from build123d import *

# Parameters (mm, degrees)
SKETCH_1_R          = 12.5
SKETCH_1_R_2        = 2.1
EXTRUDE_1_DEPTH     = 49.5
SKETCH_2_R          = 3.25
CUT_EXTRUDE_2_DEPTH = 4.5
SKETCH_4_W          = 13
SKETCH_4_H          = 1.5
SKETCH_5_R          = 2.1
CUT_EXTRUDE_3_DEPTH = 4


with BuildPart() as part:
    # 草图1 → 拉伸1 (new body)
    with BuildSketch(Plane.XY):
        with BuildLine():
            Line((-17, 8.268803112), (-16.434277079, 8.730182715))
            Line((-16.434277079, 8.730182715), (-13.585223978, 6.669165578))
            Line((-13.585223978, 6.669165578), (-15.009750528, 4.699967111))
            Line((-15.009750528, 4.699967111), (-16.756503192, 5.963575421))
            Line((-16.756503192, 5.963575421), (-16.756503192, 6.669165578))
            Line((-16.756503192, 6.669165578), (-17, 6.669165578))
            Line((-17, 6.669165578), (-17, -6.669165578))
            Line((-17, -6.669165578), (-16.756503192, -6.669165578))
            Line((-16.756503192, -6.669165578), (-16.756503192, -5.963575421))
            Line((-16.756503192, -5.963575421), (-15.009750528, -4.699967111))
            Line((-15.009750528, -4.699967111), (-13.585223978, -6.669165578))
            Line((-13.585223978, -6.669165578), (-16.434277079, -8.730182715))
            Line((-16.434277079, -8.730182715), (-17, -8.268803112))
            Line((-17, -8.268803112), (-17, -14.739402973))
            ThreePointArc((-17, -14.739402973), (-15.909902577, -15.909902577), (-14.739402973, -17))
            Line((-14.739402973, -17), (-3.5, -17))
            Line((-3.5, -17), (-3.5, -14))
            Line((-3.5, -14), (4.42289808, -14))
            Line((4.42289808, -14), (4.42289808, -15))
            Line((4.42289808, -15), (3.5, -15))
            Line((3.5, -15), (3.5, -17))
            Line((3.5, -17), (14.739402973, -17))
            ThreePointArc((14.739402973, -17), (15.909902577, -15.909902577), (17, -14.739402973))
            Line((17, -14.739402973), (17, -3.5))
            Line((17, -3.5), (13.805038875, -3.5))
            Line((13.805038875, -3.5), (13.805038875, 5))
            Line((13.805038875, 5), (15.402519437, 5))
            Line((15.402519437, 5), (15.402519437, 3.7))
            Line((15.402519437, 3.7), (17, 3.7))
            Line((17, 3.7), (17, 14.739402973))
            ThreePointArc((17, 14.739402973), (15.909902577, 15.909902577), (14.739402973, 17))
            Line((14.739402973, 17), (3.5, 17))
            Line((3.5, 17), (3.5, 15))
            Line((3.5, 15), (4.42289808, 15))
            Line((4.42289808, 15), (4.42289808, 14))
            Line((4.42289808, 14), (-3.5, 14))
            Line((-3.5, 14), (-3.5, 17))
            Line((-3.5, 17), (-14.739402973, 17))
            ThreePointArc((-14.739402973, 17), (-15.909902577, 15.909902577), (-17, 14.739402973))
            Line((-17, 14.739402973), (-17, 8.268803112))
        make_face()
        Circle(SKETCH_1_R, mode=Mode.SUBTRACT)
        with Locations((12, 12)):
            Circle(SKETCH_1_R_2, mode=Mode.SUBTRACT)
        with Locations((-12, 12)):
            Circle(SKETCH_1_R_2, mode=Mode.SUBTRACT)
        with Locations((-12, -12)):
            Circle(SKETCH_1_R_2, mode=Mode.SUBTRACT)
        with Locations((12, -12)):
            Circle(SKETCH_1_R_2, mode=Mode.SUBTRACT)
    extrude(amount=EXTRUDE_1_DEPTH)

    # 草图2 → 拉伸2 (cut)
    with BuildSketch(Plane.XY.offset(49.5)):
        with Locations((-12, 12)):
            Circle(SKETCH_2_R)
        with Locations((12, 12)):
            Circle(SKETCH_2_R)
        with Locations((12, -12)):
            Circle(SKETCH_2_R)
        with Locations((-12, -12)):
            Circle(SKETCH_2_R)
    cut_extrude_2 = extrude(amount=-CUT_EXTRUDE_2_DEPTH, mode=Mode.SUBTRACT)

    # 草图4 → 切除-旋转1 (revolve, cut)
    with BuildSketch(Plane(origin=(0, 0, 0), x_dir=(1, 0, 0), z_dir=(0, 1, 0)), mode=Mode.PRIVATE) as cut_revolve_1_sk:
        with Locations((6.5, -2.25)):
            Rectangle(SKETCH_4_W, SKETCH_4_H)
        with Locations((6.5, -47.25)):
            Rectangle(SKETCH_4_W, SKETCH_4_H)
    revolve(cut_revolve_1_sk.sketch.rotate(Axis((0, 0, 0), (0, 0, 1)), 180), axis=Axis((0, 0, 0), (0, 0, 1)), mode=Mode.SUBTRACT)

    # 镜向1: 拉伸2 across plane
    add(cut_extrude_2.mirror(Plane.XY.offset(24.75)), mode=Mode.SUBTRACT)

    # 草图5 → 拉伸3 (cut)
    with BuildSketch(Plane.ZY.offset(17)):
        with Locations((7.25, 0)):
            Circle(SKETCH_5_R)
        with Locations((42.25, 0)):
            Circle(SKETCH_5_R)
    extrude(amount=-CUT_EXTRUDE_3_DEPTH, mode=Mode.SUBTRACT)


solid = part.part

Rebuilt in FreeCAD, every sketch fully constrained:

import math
import FreeCAD as App
import Part
import Sketcher
Q = App.Units.Quantity


def add_polygon(sketch, points):
    """Adds a closed chain of lines whose ends are joined by coincident constraints."""
    first, n = sketch.GeometryCount, len(points)
    for a, b in zip(points, points[1:] + points[:1]):
        sketch.addGeometry(Part.LineSegment(App.Vector(*a, 0), App.Vector(*b, 0)), False)
    for i in range(n):
        sketch.addConstraint(Sketcher.Constraint("Coincident", first + i, 2, first + (i + 1) % n, 1))

doc = App.newDocument("Part")
body = doc.addObject("PartDesign::Body", "Body")

sketch1 = body.newObject("Sketcher::SketchObject", "Sketch")
sketch1.AttachmentSupport = (doc.getObject("XY_Plane"), [""])
sketch1.MapMode = "FlatFace"
sketch1.addGeometry(Part.LineSegment(App.Vector(-17, 8.27, 0), App.Vector(-16.43, 8.73, 0)), False)
sketch1.addGeometry(Part.LineSegment(App.Vector(-16.43, 8.73, 0), App.Vector(-13.59, 6.67, 0)), False)
sketch1.addGeometry(Part.LineSegment(App.Vector(-13.59, 6.67, 0), App.Vector(-15.01, 4.7, 0)), False)
sketch1.addGeometry(Part.LineSegment(App.Vector(-15.01, 4.7, 0), App.Vector(-16.76, 5.96, 0)), False)
sketch1.addGeometry(Part.LineSegment(App.Vector(-16.76, 5.96, 0), App.Vector(-16.76, 6.67, 0)), False)
sketch1.addGeometry(Part.LineSegment(App.Vector(-16.76, 6.67, 0), App.Vector(-17, 6.67, 0)), False)
sketch1.addGeometry(Part.LineSegment(App.Vector(-17, 6.67, 0), App.Vector(-17, -6.67, 0)), False)
sketch1.addGeometry(Part.LineSegment(App.Vector(-17, -6.67, 0), App.Vector(-16.76, -6.67, 0)), False)
sketch1.addGeometry(Part.LineSegment(App.Vector(-16.76, -6.67, 0), App.Vector(-16.76, -5.96, 0)), False)
sketch1.addGeometry(Part.LineSegment(App.Vector(-16.76, -5.96, 0), App.Vector(-15.01, -4.7, 0)), False)
sketch1.addGeometry(Part.LineSegment(App.Vector(-15.01, -4.7, 0), App.Vector(-13.59, -6.67, 0)), False)
sketch1.addGeometry(Part.LineSegment(App.Vector(-13.59, -6.67, 0), App.Vector(-16.43, -8.73, 0)), False)
sketch1.addGeometry(Part.LineSegment(App.Vector(-16.43, -8.73, 0), App.Vector(-17, -8.27, 0)), False)
sketch1.addGeometry(Part.LineSegment(App.Vector(-17, -8.27, 0), App.Vector(-17, -14.74, 0)), False)
sketch1.addGeometry(Part.ArcOfCircle(Part.Circle(App.Vector(0, 0, 0), App.Vector(0, 0, 1), 22.5), math.radians(-139.07), math.radians(-130.93)), False)
sketch1.addGeometry(Part.LineSegment(App.Vector(-14.74, -17, 0), App.Vector(-3.5, -17, 0)), False)
sketch1.addGeometry(Part.LineSegment(App.Vector(-3.5, -17, 0), App.Vector(-3.5, -14, 0)), False)
sketch1.addGeometry(Part.LineSegment(App.Vector(-3.5, -14, 0), App.Vector(4.42, -14, 0)), False)
sketch1.addGeometry(Part.LineSegment(App.Vector(4.42, -14, 0), App.Vector(4.42, -15, 0)), False)
sketch1.addGeometry(Part.LineSegment(App.Vector(4.42, -15, 0), App.Vector(3.5, -15, 0)), False)
sketch1.addGeometry(Part.LineSegment(App.Vector(3.5, -15, 0), App.Vector(3.5, -17, 0)), False)
sketch1.addGeometry(Part.LineSegment(App.Vector(3.5, -17, 0), App.Vector(14.74, -17, 0)), False)
sketch1.addGeometry(Part.ArcOfCircle(Part.Circle(App.Vector(0, 0, 0), App.Vector(0, 0, 1), 22.5), math.radians(-49.07), math.radians(-40.93)), False)
sketch1.addGeometry(Part.LineSegment(App.Vector(17, -14.74, 0), App.Vector(17, -3.5, 0)), False)
sketch1.addGeometry(Part.LineSegment(App.Vector(17, -3.5, 0), App.Vector(13.81, -3.5, 0)), False)
sketch1.addGeometry(Part.LineSegment(App.Vector(13.81, -3.5, 0), App.Vector(13.81, 5, 0)), False)
sketch1.addGeometry(Part.LineSegment(App.Vector(13.81, 5, 0), App.Vector(15.4, 5, 0)), False)
sketch1.addGeometry(Part.LineSegment(App.Vector(15.4, 5, 0), App.Vector(15.4, 3.7, 0)), False)
sketch1.addGeometry(Part.LineSegment(App.Vector(15.4, 3.7, 0), App.Vector(17, 3.7, 0)), False)
sketch1.addGeometry(Part.LineSegment(App.Vector(17, 3.7, 0), App.Vector(17, 14.74, 0)), False)
sketch1.addGeometry(Part.ArcOfCircle(Part.Circle(App.Vector(0, 0, 0), App.Vector(0, 0, 1), 22.5), math.radians(40.93), math.radians(49.07)), False)
sketch1.addGeometry(Part.LineSegment(App.Vector(14.74, 17, 0), App.Vector(3.5, 17, 0)), False)
sketch1.addGeometry(Part.LineSegment(App.Vector(3.5, 17, 0), App.Vector(3.5, 15, 0)), False)
sketch1.addGeometry(Part.LineSegment(App.Vector(3.5, 15, 0), App.Vector(4.42, 15, 0)), False)
sketch1.addGeometry(Part.LineSegment(App.Vector(4.42, 15, 0), App.Vector(4.42, 14, 0)), False)
sketch1.addGeometry(Part.LineSegment(App.Vector(4.42, 14, 0), App.Vector(-3.5, 14, 0)), False)
sketch1.addGeometry(Part.LineSegment(App.Vector(-3.5, 14, 0), App.Vector(-3.5, 17, 0)), False)
sketch1.addGeometry(Part.LineSegment(App.Vector(-3.5, 17, 0), App.Vector(-14.74, 17, 0)), False)
sketch1.addGeometry(Part.ArcOfCircle(Part.Circle(App.Vector(0, 0, 0), App.Vector(0, 0, 1), 22.5), math.radians(130.93), math.radians(139.07)), False)
sketch1.addGeometry(Part.LineSegment(App.Vector(-17, 14.74, 0), App.Vector(-17, 8.27, 0)), False)
sketch1.addGeometry(Part.Circle(App.Vector(-12, -12, 0), App.Vector(0, 0, 1), 2.1), False)
sketch1.addGeometry(Part.Circle(App.Vector(12, -12, 0), App.Vector(0, 0, 1), 2.1), False)
sketch1.addGeometry(Part.Circle(App.Vector(-12, 12, 0), App.Vector(0, 0, 1), 2.1), False)
sketch1.addGeometry(Part.Circle(App.Vector(0, 0, 0), App.Vector(0, 0, 1), 12.5), False)
sketch1.addGeometry(Part.Circle(App.Vector(12, 12, 0), App.Vector(0, 0, 1), 2.1), False)
sketch1.addConstraint(Sketcher.Constraint("Coincident", 0, 2, 1, 1))
sketch1.addConstraint(Sketcher.Constraint("Coincident", 1, 2, 2, 1))
sketch1.addConstraint(Sketcher.Constraint("Coincident", 2, 2, 3, 1))
sketch1.addConstraint(Sketcher.Constraint("Coincident", 3, 2, 4, 1))
sketch1.addConstraint(Sketcher.Constraint("Coincident", 4, 2, 5, 1))
sketch1.addConstraint(Sketcher.Constraint("Coincident", 5, 2, 6, 1))
sketch1.addConstraint(Sketcher.Constraint("Coincident", 6, 2, 7, 1))
sketch1.addConstraint(Sketcher.Constraint("Coincident", 7, 2, 8, 1))
sketch1.addConstraint(Sketcher.Constraint("Coincident", 8, 2, 9, 1))
sketch1.addConstraint(Sketcher.Constraint("Coincident", 9, 2, 10, 1))
sketch1.addConstraint(Sketcher.Constraint("Coincident", 10, 2, 11, 1))
sketch1.addConstraint(Sketcher.Constraint("Coincident", 11, 2, 12, 1))
sketch1.addConstraint(Sketcher.Constraint("Coincident", 12, 2, 13, 1))
sketch1.addConstraint(Sketcher.Constraint("Coincident", 13, 2, 14, 1))
sketch1.addConstraint(Sketcher.Constraint("Coincident", 14, 2, 15, 1))
sketch1.addConstraint(Sketcher.Constraint("Coincident", 15, 2, 16, 1))
sketch1.addConstraint(Sketcher.Constraint("Coincident", 16, 2, 17, 1))
sketch1.addConstraint(Sketcher.Constraint("Coincident", 17, 2, 18, 1))
sketch1.addConstraint(Sketcher.Constraint("Coincident", 18, 2, 19, 1))
sketch1.addConstraint(Sketcher.Constraint("Coincident", 19, 2, 20, 1))
sketch1.addConstraint(Sketcher.Constraint("Coincident", 20, 2, 21, 1))
sketch1.addConstraint(Sketcher.Constraint("Coincident", 21, 2, 22, 1))
sketch1.addConstraint(Sketcher.Constraint("Coincident", 22, 2, 23, 1))
sketch1.addConstraint(Sketcher.Constraint("Coincident", 23, 2, 24, 1))
sketch1.addConstraint(Sketcher.Constraint("Coincident", 24, 2, 25, 1))
sketch1.addConstraint(Sketcher.Constraint("Coincident", 25, 2, 26, 1))
sketch1.addConstraint(Sketcher.Constraint("Coincident", 26, 2, 27, 1))
sketch1.addConstraint(Sketcher.Constraint("Coincident", 27, 2, 28, 1))
sketch1.addConstraint(Sketcher.Constraint("Coincident", 28, 2, 29, 1))
sketch1.addConstraint(Sketcher.Constraint("Coincident", 29, 2, 30, 1))
sketch1.addConstraint(Sketcher.Constraint("Coincident", 30, 2, 31, 1))
sketch1.addConstraint(Sketcher.Constraint("Coincident", 31, 2, 32, 1))
sketch1.addConstraint(Sketcher.Constraint("Coincident", 32, 2, 33, 1))
sketch1.addConstraint(Sketcher.Constraint("Coincident", 33, 2, 34, 1))
sketch1.addConstraint(Sketcher.Constraint("Coincident", 34, 2, 35, 1))
sketch1.addConstraint(Sketcher.Constraint("Coincident", 35, 2, 36, 1))
sketch1.addConstraint(Sketcher.Constraint("Coincident", 36, 2, 37, 1))
sketch1.addConstraint(Sketcher.Constraint("Coincident", 37, 2, 38, 1))
sketch1.addConstraint(Sketcher.Constraint("Coincident", 38, 2, 39, 1))
sketch1.addConstraint(Sketcher.Constraint("Coincident", 39, 2, 0, 1))
sketch1.addConstraint(Sketcher.Constraint("Vertical", 4))
sketch1.addConstraint(Sketcher.Constraint("Horizontal", 5))
sketch1.addConstraint(Sketcher.Constraint("Vertical", 6))
sketch1.addConstraint(Sketcher.Constraint("Horizontal", 7))
sketch1.addConstraint(Sketcher.Constraint("Vertical", 8))
sketch1.addConstraint(Sketcher.Constraint("Vertical", 13))
sketch1.addConstraint(Sketcher.Constraint("Horizontal", 15))
sketch1.addConstraint(Sketcher.Constraint("Vertical", 16))
sketch1.addConstraint(Sketcher.Constraint("Horizontal", 17))
sketch1.addConstraint(Sketcher.Constraint("Vertical", 18))
sketch1.addConstraint(Sketcher.Constraint("Horizontal", 19))
sketch1.addConstraint(Sketcher.Constraint("Vertical", 20))
sketch1.addConstraint(Sketcher.Constraint("Horizontal", 21))
sketch1.addConstraint(Sketcher.Constraint("Vertical", 23))
sketch1.addConstraint(Sketcher.Constraint("Horizontal", 24))
sketch1.addConstraint(Sketcher.Constraint("Vertical", 25))
sketch1.addConstraint(Sketcher.Constraint("Horizontal", 26))
sketch1.addConstraint(Sketcher.Constraint("Vertical", 27))
sketch1.addConstraint(Sketcher.Constraint("Horizontal", 28))
sketch1.addConstraint(Sketcher.Constraint("Vertical", 29))
sketch1.addConstraint(Sketcher.Constraint("Horizontal", 31))
sketch1.addConstraint(Sketcher.Constraint("Vertical", 32))
sketch1.addConstraint(Sketcher.Constraint("Horizontal", 33))
sketch1.addConstraint(Sketcher.Constraint("Vertical", 34))
sketch1.addConstraint(Sketcher.Constraint("Horizontal", 35))
sketch1.addConstraint(Sketcher.Constraint("Vertical", 36))
sketch1.addConstraint(Sketcher.Constraint("Horizontal", 37))
sketch1.addConstraint(Sketcher.Constraint("Vertical", 39))
sketch1.addConstraint(Sketcher.Constraint("Coincident", 14, 3, -1, 1))
sketch1.addConstraint(Sketcher.Constraint("Coincident", 22, 3, -1, 1))
sketch1.addConstraint(Sketcher.Constraint("Coincident", 30, 3, -1, 1))
sketch1.addConstraint(Sketcher.Constraint("Coincident", 38, 3, -1, 1))
sketch1.addConstraint(Sketcher.Constraint("Coincident", 43, 3, -1, 1))
sketch1.addConstraint(Sketcher.Constraint("Equal", 14, 22))
sketch1.addConstraint(Sketcher.Constraint("Equal", 22, 30))
sketch1.addConstraint(Sketcher.Constraint("Equal", 30, 38))
sketch1.addConstraint(Sketcher.Constraint("Equal", 40, 41))
sketch1.addConstraint(Sketcher.Constraint("Equal", 41, 42))
sketch1.addConstraint(Sketcher.Constraint("Equal", 42, 44))
sketch1.addConstraint(Sketcher.Constraint("Symmetric", 41, 3, 42, 3, -1, 1))
sketch1.addConstraint(Sketcher.Constraint("Symmetric", 40, 3, 44, 3, -1, 1))
sketch1.addConstraint(Sketcher.Constraint("Symmetric", 15, 2, 31, 2, -1, 1))
sketch1.addConstraint(Sketcher.Constraint("Symmetric", 20, 2, 36, 2, -1, 1))
sketch1.addConstraint(Sketcher.Constraint("Symmetric", 40, 3, 41, 3, -2))
sketch1.addConstraint(Sketcher.Constraint("Symmetric", 15, 2, 20, 2, -2))
sketch1.addConstraint(Sketcher.Constraint("Symmetric", 4, 2, 7, 2, -1))
sketch1.addConstraint(Sketcher.Constraint("Symmetric", 2, 2, 9, 2, -1))
sketch1.addConstraint(Sketcher.Constraint("Symmetric", 1, 2, 10, 2, -1))
sketch1.addConstraint(Sketcher.Constraint("Symmetric", 0, 2, 11, 2, -1))
sketch1.addConstraint(Sketcher.Constraint("Symmetric", 18, 2, 33, 2, -1))
sketch1.addConstraint(Sketcher.Constraint("Symmetric", 12, 2, 39, 2, -1))
sketch1.addConstraint(Sketcher.Constraint("Perpendicular", 1, 2))
sketch1.addConstraint(Sketcher.Constraint("Perpendicular", 2, 3))
sketch1.addConstraint(Sketcher.Constraint("Perpendicular", 9, 10))
sketch1.addConstraint(Sketcher.Constraint("Horizontal", 1, 2, 4, 2))
sketch1.addConstraint(Sketcher.Constraint("Horizontal", 13, 2, 22, 2))
sketch1.addConstraint(Sketcher.Constraint("Horizontal", 29, 2, 38, 2))
sketch1.addConstraint(Sketcher.Constraint("Vertical", 6, 2, 12, 2))
sketch1.addConstraint(Sketcher.Constraint("Equal", 26, 28))
sketch1.addConstraint(Sketcher.Constraint("Equal", 37, 23))
sketch1.addConstraint(Sketcher.Constraint("Equal", 18, 34))
sketch1.addConstraint(Sketcher.Constraint("Diameter", 43, Q("25 mm")))
sketch1.addConstraint(Sketcher.Constraint("Diameter", 40, Q("4.2 mm")))
sketch1.addConstraint(Sketcher.Constraint("Radius", 14, Q("22.5 mm")))
sketch1.addConstraint(Sketcher.Constraint("DistanceY", 16, 1, 16, 2, Q("3 mm")))
sketch1.addConstraint(Sketcher.Constraint("DistanceY", 18, 2, 18, 1, Q("1 mm")))
sketch1.addConstraint(Sketcher.Constraint("DistanceY", 25, 1, 25, 2, Q("8.5 mm")))
sketch1.addConstraint(Sketcher.Constraint("DistanceY", 27, 2, 27, 1, Q("1.3 mm")))
sketch1.addConstraint(Sketcher.Constraint("DistanceX", 40, 3, -1, 1, Q("12 mm")))
sketch1.addConstraint(Sketcher.Constraint("DistanceY", 40, 3, -1, 1, Q("12 mm")))
sketch1.addConstraint(Sketcher.Constraint("DistanceX", 5, 2, -1, 1, Q("17 mm")))
sketch1.addConstraint(Sketcher.Constraint("DistanceY", 14, 2, -1, 1, Q("17 mm")))
sketch1.addConstraint(Sketcher.Constraint("DistanceY", -1, 1, 25, 2, Q("5 mm")))
sketch1.addConstraint(Sketcher.Constraint("DistanceX", 17, 1, 17, 2, Q("7.922898 mm")))
sketch1.addConstraint(Sketcher.Constraint("DistanceY", 13, 2, 13, 1, Q("6.4706 mm")))
sketch1.addConstraint(Sketcher.Constraint("DistanceX", 24, 2, 24, 1, Q("3.194961 mm")))
sketch1.addConstraint(Sketcher.Constraint("DistanceY", 4, 1, 4, 2, Q("0.70559 mm")))
sketch1.addConstraint(Sketcher.Constraint("DistanceY", 6, 2, 6, 1, Q("13.338331 mm")))
sketch1.addConstraint(Sketcher.Constraint("DistanceY", 2, 2, 1, 2, Q("1.969198 mm")))
sketch1.addConstraint(Sketcher.Constraint("DistanceX", 4, 2, 37, 2, Q("2.0171 mm")))
sketch1.addConstraint(Sketcher.Constraint("Distance", 0, Q("0.730009 mm")))
sketch1.addConstraint(Sketcher.Constraint("DistanceX", 2, 2, -1, 1, Q("15.009751 mm")))
pad1 = body.newObject("PartDesign::Pad", "Pad")
pad1.Profile = sketch1
pad1.Length = 49.5

sketch2 = body.newObject("Sketcher::SketchObject", "Sketch001")
sketch2.AttachmentSupport = (doc.getObject("XY_Plane"), [""])
sketch2.MapMode = "FlatFace"
sketch2.AttachmentOffset = App.Placement(App.Vector(0, 0, 49.5), App.Rotation())
sketch2.addGeometry(Part.Circle(App.Vector(-12, 12, 0), App.Vector(0, 0, 1), 3.2), False)
sketch2.addGeometry(Part.Circle(App.Vector(12, 12, 0), App.Vector(0, 0, 1), 3.2), False)
sketch2.addGeometry(Part.Circle(App.Vector(12, -12, 0), App.Vector(0, 0, 1), 3.2), False)
sketch2.addGeometry(Part.Circle(App.Vector(-12, -12, 0), App.Vector(0, 0, 1), 3.2), False)
sketch2.addConstraint(Sketcher.Constraint("Equal", 0, 1))
sketch2.addConstraint(Sketcher.Constraint("Equal", 1, 2))
sketch2.addConstraint(Sketcher.Constraint("Equal", 2, 3))
sketch2.addConstraint(Sketcher.Constraint("Symmetric", 0, 3, 2, 3, -1, 1))
sketch2.addConstraint(Sketcher.Constraint("Symmetric", 1, 3, 3, 3, -1, 1))
sketch2.addConstraint(Sketcher.Constraint("Symmetric", 0, 3, 1, 3, -2))
sketch2.addConstraint(Sketcher.Constraint("Diameter", 0, Q("6.5 mm")))
sketch2.addConstraint(Sketcher.Constraint("DistanceX", 0, 3, -1, 1, Q("12 mm")))
sketch2.addConstraint(Sketcher.Constraint("DistanceY", -1, 1, 0, 3, Q("12 mm")))
pocket1 = body.newObject("PartDesign::Pocket", "Pocket")
pocket1.Profile = sketch2
pocket1.Length = 4.5

sketch3 = body.newObject("Sketcher::SketchObject", "Sketch002")
sketch3.AttachmentSupport = (doc.getObject("XZ_Plane"), [""])
sketch3.MapMode = "FlatFace"
add_polygon(sketch3, [(0, 1.5), (0, 3), (13, 3), (13, 1.5)])
add_polygon(sketch3, [(0, 46.5), (0, 48), (13, 48), (13, 46.5)])
sketch3.addConstraint(Sketcher.Constraint("Vertical", 0))
sketch3.addConstraint(Sketcher.Constraint("Horizontal", 1))
sketch3.addConstraint(Sketcher.Constraint("Vertical", 2))
sketch3.addConstraint(Sketcher.Constraint("Horizontal", 3))
sketch3.addConstraint(Sketcher.Constraint("Vertical", 4))
sketch3.addConstraint(Sketcher.Constraint("Horizontal", 5))
sketch3.addConstraint(Sketcher.Constraint("Vertical", 6))
sketch3.addConstraint(Sketcher.Constraint("Horizontal", 7))
sketch3.addConstraint(Sketcher.Constraint("PointOnObject", 0, 2, -2))
sketch3.addConstraint(Sketcher.Constraint("PointOnObject", 4, 2, -2))
sketch3.addConstraint(Sketcher.Constraint("Vertical", 2, 2, 5, 2))
sketch3.addConstraint(Sketcher.Constraint("Equal", 2, 4))
sketch3.addConstraint(Sketcher.Constraint("DistanceX", 1, 1, 1, 2, Q("13 mm")))
sketch3.addConstraint(Sketcher.Constraint("DistanceY", 0, 1, 0, 2, Q("1.5 mm")))
sketch3.addConstraint(Sketcher.Constraint("DistanceY", -1, 1, 0, 2, Q("3 mm")))
sketch3.addConstraint(Sketcher.Constraint("DistanceY", -1, 1, 4, 2, Q("48 mm")))
groove = body.newObject("PartDesign::Groove", "Groove")
groove.Profile = sketch3
groove.ReferenceAxis = (sketch3, ["V_Axis"])
groove.Angle = 360
doc.recompute()

datumplane = body.newObject("PartDesign::Plane", "DatumPlane")
datumplane.AttachmentSupport = (doc.getObject("XY_Plane"), [""])
datumplane.MapMode = "FlatFace"
datumplane.AttachmentOffset = App.Placement(App.Vector(0, 0, 24.75), App.Rotation())
mirrored = body.newObject("PartDesign::Mirrored", "Mirrored")
mirrored.Originals = [pocket1]
mirrored.MirrorPlane = (datumplane, [""])
body.Tip = mirrored

sketch4 = body.newObject("Sketcher::SketchObject", "Sketch003")
sketch4.AttachmentSupport = (doc.getObject("YZ_Plane"), [""])
sketch4.MapMode = "FlatFace"
sketch4.AttachmentOffset = App.Placement(App.Vector(0, 0, -17), App.Rotation())
sketch4.addGeometry(Part.Circle(App.Vector(0, 7.2, 0), App.Vector(0, 0, 1), 2.1), False)
sketch4.addGeometry(Part.Circle(App.Vector(0, 42.2, 0), App.Vector(0, 0, 1), 2.1), False)
sketch4.addConstraint(Sketcher.Constraint("Equal", 0, 1))
sketch4.addConstraint(Sketcher.Constraint("PointOnObject", 0, 3, -2))
sketch4.addConstraint(Sketcher.Constraint("PointOnObject", 1, 3, -2))
sketch4.addConstraint(Sketcher.Constraint("Diameter", 0, Q("4.2 mm")))
sketch4.addConstraint(Sketcher.Constraint("DistanceY", 0, 3, 1, 3, Q("35 mm")))
sketch4.addConstraint(Sketcher.Constraint("DistanceY", -1, 1, 0, 3, Q("7.25 mm")))
pocket2 = body.newObject("PartDesign::Pocket", "Pocket001")
pocket2.Profile = sketch4
pocket2.Length = 4
pocket2.Reversed = True

doc.recompute()
